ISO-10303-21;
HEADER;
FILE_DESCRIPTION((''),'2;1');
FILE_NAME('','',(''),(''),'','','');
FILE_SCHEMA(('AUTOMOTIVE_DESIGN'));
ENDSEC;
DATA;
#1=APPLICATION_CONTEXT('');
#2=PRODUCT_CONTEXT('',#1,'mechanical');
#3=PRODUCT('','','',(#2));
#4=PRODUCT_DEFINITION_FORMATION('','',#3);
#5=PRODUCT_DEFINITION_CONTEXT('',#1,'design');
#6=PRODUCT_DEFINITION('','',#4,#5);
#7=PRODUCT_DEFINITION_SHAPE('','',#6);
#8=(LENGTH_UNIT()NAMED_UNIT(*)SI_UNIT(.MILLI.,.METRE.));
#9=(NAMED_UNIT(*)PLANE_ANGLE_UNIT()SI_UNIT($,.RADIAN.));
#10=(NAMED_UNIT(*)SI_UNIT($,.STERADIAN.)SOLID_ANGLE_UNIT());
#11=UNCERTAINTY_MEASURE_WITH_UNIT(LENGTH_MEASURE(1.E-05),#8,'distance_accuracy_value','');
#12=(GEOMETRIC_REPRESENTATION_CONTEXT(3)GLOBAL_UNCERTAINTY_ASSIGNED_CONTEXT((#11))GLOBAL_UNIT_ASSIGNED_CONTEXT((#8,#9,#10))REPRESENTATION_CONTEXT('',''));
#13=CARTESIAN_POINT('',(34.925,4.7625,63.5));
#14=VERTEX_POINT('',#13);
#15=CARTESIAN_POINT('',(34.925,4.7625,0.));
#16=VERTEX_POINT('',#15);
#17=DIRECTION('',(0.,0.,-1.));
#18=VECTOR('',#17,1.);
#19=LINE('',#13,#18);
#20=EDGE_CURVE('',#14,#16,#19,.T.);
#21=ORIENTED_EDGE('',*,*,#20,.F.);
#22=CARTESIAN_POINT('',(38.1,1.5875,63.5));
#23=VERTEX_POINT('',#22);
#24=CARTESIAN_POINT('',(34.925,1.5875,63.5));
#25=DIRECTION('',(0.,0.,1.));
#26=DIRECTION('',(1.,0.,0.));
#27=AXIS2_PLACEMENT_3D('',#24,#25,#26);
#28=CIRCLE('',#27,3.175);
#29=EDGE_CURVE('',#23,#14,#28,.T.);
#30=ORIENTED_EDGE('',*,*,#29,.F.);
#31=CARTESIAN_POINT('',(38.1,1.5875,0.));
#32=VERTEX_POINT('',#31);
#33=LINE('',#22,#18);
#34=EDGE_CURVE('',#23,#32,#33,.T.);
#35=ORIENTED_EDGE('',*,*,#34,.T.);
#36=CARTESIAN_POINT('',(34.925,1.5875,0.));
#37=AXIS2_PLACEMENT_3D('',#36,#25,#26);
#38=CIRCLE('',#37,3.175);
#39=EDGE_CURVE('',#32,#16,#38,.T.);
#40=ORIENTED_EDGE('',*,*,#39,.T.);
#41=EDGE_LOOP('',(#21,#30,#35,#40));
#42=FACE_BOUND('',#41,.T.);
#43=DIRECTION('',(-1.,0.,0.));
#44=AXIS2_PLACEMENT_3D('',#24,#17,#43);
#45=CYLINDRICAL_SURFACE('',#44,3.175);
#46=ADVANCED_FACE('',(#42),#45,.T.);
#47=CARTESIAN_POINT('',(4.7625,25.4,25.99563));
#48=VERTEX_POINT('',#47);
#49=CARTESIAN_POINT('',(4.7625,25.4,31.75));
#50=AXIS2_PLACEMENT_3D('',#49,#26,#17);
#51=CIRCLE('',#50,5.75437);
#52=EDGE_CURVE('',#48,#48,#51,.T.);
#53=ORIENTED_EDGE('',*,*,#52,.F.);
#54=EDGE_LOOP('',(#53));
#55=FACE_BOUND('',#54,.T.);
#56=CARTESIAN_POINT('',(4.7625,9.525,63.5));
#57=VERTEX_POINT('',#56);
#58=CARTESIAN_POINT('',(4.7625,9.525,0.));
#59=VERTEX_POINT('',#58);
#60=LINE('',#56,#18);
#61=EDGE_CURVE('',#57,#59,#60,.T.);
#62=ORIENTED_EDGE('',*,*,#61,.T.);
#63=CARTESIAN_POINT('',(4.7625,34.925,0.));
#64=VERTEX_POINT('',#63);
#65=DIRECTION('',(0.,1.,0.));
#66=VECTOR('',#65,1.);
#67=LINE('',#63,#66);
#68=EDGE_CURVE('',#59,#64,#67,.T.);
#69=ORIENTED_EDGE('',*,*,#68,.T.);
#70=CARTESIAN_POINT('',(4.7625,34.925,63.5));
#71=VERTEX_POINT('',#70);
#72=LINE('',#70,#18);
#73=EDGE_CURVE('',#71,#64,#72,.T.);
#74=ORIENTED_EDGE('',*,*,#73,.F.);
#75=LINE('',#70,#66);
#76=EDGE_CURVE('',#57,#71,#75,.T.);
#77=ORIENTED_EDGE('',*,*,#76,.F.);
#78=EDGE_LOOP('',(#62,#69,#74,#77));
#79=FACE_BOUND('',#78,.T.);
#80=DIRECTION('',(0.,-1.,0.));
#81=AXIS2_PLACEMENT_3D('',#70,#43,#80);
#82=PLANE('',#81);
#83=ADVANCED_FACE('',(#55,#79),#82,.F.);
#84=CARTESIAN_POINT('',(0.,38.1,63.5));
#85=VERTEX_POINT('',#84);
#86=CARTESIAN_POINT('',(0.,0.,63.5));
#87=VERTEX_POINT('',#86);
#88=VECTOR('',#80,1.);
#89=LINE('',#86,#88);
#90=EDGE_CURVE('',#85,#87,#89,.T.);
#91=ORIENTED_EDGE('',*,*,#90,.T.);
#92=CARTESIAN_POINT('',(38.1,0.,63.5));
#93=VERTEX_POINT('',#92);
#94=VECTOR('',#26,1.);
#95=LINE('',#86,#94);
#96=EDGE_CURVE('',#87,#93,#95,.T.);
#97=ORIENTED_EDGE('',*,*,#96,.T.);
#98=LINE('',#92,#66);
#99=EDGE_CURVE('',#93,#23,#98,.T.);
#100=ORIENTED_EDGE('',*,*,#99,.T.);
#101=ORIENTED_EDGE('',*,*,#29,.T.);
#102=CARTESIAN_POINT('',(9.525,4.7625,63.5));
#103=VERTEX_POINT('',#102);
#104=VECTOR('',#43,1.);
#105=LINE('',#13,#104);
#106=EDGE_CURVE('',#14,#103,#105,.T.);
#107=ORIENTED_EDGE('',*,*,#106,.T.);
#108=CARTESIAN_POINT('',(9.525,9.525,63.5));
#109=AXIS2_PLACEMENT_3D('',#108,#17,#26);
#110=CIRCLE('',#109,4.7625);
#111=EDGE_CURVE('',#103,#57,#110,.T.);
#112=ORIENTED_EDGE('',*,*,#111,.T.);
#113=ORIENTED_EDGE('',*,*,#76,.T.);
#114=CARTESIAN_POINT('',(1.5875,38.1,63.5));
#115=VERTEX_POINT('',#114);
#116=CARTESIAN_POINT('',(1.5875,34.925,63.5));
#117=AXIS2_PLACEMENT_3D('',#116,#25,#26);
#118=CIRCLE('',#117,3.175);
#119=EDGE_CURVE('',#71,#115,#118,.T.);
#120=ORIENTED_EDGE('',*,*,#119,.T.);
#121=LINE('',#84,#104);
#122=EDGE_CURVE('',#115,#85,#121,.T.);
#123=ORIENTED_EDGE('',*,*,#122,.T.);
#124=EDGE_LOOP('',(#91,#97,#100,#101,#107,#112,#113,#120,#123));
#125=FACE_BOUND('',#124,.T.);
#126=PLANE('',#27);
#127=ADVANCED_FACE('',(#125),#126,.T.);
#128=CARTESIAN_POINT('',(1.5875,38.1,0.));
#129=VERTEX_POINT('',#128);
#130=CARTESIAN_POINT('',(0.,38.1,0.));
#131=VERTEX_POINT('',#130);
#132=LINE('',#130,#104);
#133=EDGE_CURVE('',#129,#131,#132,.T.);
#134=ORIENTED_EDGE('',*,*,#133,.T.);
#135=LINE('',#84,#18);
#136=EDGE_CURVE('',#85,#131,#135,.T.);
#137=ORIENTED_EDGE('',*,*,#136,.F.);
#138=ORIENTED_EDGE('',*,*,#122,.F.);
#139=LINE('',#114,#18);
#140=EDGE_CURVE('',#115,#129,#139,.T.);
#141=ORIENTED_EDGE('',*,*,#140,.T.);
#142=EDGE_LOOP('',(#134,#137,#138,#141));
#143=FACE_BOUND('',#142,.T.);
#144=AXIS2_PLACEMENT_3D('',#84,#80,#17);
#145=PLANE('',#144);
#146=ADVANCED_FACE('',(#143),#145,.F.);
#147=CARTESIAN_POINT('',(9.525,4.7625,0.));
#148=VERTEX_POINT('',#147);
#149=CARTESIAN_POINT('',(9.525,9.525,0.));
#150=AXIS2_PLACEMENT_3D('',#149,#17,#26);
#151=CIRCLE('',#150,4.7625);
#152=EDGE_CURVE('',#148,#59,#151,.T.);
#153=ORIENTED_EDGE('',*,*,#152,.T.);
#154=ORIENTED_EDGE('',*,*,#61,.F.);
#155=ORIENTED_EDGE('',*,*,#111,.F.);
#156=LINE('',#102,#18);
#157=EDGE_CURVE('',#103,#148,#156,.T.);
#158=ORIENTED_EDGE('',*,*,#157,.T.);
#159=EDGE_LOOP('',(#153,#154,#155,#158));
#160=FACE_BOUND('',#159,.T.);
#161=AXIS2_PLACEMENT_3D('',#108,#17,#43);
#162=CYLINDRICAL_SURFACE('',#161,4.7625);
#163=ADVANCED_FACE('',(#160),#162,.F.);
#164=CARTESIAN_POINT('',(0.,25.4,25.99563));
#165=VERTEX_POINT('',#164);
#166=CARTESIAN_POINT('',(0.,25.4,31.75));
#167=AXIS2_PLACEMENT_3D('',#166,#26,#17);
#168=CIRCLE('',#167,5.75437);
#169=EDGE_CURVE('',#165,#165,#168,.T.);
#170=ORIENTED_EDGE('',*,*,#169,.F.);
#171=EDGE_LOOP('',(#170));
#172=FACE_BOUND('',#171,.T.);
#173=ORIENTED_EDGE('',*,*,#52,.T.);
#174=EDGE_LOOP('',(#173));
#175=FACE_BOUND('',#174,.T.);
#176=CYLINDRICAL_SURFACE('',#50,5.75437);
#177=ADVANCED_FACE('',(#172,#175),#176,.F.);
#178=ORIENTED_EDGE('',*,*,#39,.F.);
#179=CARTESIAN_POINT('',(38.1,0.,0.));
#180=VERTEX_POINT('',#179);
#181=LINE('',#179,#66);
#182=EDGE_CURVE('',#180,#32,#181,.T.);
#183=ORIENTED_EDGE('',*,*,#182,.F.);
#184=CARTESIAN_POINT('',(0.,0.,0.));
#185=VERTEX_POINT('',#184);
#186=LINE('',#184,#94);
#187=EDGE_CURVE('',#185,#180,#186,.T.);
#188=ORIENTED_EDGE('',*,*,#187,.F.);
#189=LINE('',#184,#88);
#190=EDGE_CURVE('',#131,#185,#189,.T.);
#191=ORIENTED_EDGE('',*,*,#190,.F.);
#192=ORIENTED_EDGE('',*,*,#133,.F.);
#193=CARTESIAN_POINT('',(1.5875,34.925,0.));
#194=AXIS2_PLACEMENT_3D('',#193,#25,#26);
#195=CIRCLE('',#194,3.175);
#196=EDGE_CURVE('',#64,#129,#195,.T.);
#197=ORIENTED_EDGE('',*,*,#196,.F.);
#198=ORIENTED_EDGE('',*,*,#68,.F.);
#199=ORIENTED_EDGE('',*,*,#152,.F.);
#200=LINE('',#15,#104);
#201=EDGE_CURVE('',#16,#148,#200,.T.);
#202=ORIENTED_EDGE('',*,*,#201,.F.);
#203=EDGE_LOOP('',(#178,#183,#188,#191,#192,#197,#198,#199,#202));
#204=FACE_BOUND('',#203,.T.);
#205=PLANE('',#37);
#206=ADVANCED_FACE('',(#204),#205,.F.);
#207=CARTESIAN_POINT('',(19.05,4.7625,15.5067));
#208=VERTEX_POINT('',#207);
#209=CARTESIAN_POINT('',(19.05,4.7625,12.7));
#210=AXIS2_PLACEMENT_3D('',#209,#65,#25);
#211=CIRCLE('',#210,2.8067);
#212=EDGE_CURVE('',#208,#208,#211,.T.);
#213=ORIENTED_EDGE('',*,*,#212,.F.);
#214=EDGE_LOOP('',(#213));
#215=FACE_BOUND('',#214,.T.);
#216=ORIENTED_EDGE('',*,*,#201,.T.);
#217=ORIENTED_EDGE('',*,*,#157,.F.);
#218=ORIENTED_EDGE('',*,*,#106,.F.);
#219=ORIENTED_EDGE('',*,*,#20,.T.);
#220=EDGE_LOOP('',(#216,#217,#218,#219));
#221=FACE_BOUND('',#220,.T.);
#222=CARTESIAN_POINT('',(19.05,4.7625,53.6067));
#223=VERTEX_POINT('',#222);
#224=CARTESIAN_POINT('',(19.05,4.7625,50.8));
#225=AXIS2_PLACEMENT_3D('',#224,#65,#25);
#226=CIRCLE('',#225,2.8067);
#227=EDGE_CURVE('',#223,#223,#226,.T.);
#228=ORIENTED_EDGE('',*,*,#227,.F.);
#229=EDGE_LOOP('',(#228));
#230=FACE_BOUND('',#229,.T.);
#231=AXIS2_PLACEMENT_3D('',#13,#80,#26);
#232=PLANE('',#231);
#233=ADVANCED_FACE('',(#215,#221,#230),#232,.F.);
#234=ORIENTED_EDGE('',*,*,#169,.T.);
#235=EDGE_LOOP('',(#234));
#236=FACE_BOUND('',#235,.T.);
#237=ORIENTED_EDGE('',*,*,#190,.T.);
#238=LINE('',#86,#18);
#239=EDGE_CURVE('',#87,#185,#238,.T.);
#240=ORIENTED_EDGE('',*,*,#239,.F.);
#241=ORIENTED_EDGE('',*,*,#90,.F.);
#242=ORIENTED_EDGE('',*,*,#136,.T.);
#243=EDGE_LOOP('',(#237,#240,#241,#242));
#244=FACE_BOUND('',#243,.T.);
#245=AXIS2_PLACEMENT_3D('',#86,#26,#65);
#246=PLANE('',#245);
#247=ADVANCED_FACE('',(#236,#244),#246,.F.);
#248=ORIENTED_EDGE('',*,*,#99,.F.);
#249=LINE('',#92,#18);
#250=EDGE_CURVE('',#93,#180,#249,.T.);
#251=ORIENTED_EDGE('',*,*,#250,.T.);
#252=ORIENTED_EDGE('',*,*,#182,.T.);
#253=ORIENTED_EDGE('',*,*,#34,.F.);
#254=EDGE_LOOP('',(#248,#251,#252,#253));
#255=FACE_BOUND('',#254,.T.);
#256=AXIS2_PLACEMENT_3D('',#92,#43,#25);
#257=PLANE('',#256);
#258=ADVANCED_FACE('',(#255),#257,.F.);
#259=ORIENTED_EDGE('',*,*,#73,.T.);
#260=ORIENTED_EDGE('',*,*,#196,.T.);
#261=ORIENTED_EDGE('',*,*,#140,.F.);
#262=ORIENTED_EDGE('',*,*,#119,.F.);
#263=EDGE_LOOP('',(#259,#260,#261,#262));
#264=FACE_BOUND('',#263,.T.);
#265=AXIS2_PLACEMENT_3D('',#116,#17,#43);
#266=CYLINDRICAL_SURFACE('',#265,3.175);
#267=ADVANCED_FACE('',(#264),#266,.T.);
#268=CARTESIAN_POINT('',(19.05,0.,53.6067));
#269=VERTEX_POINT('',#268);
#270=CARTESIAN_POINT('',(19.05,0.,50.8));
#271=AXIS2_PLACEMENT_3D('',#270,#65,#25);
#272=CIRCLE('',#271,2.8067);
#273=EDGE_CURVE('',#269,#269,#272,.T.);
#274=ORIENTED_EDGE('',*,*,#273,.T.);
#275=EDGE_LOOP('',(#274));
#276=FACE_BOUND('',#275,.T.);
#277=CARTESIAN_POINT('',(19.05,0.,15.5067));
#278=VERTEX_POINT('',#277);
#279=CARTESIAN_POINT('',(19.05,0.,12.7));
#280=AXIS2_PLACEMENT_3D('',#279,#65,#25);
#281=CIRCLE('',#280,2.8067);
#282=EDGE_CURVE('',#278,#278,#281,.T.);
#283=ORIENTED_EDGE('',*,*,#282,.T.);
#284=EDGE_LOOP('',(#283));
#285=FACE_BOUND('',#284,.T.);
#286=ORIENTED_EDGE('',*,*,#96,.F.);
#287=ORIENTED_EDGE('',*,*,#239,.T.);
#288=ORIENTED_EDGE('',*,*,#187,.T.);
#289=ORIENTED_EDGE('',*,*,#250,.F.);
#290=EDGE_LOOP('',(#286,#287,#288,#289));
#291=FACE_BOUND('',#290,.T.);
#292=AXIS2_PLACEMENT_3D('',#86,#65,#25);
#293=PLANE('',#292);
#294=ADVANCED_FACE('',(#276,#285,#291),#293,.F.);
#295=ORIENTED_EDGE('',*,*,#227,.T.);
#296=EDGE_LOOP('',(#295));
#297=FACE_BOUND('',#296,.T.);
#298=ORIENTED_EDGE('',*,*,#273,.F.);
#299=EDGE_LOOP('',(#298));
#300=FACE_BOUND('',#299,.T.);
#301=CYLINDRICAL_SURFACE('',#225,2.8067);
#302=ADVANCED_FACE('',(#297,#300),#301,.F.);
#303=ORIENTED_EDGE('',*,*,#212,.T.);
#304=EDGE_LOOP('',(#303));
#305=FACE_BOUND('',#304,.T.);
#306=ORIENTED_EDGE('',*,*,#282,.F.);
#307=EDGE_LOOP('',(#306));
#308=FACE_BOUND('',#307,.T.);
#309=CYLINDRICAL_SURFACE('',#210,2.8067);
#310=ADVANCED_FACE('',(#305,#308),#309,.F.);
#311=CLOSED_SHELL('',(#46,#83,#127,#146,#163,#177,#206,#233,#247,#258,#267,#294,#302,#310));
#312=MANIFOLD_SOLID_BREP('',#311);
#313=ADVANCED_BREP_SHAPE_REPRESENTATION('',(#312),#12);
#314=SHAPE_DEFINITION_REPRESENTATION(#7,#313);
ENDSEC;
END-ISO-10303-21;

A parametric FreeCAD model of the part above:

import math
import FreeCAD as App
import Part
import Sketcher
Q = App.Units.Quantity

doc = App.newDocument("Part")
body = doc.addObject("PartDesign::Body", "Body")

sketch1 = body.newObject("Sketcher::SketchObject", "Sketch")
sketch1.AttachmentSupport = (doc.getObject("XY_Plane"), [""])
sketch1.MapMode = "FlatFace"
sketch1.addGeometry(Part.LineSegment(App.Vector(0, 38.1, 0), App.Vector(0, 0, 0)), False)
sketch1.addGeometry(Part.LineSegment(App.Vector(0, 0, 0), App.Vector(38.1, 0, 0)), False)
sketch1.addGeometry(Part.LineSegment(App.Vector(38.1, 0, 0), App.Vector(38.1, 1.6, 0)), False)
sketch1.addGeometry(Part.ArcOfCircle(Part.Circle(App.Vector(34.9, 1.6, 0), App.Vector(0, 0, 1), 3.2), math.radians(0), math.radians(90)), False)
sketch1.addGeometry(Part.LineSegment(App.Vector(34.9, 4.8, 0), App.Vector(9.5, 4.8, 0)), False)
sketch1.addGeometry(Part.ArcOfCircle(Part.Circle(App.Vector(9.5, 9.5, 0), App.Vector(0, 0, 1), 4.8), math.radians(-180), math.radians(-90)), False)
sketch1.addGeometry(Part.LineSegment(App.Vector(4.8, 9.5, 0), App.Vector(4.8, 34.9, 0)), False)
sketch1.addGeometry(Part.ArcOfCircle(Part.Circle(App.Vector(1.6, 34.9, 0), App.Vector(0, 0, 1), 3.2), math.radians(0), math.radians(90)), False)
sketch1.addGeometry(Part.LineSegment(App.Vector(1.6, 38.1, 0), App.Vector(0, 38.1, 0)), False)
sketch1.addConstraint(Sketcher.Constraint("Coincident", 0, 2, 1, 1))
sketch1.addConstraint(Sketcher.Constraint("Coincident", 1, 2, 2, 1))
sketch1.addConstraint(Sketcher.Constraint("Tangent", 2, 2, 3, 1))
sketch1.addConstraint(Sketcher.Constraint("Tangent", 3, 2, 4, 1))
sketch1.addConstraint(Sketcher.Constraint("Tangent", 4, 2, 5, 2))
sketch1.addConstraint(Sketcher.Constraint("Tangent", 5, 1, 6, 1))
sketch1.addConstraint(Sketcher.Constraint("Tangent", 6, 2, 7, 1))
sketch1.addConstraint(Sketcher.Constraint("Tangent", 7, 2, 8, 1))
sketch1.addConstraint(Sketcher.Constraint("Coincident", 8, 2, 0, 1))
sketch1.addConstraint(Sketcher.Constraint("Vertical", 0))
sketch1.addConstraint(Sketcher.Constraint("Horizontal", 1))
sketch1.addConstraint(Sketcher.Constraint("Vertical", 2))
sketch1.addConstraint(Sketcher.Constraint("Horizontal", 4))
sketch1.addConstraint(Sketcher.Constraint("Vertical", 6))
sketch1.addConstraint(Sketcher.Constraint("Horizontal", 8))
sketch1.addConstraint(Sketcher.Constraint("Coincident", 0, 2, -1, 1))
sketch1.addConstraint(Sketcher.Constraint("Equal", 3, 7))
sketch1.addConstraint(Sketcher.Constraint("Equal", 1, 0))
sketch1.addConstraint(Sketcher.Constraint("Equal", 8, 2))
sketch1.addConstraint(Sketcher.Constraint("DistanceX", 4, 2, 4, 1, Q("1 in")))
sketch1.addConstraint(Sketcher.Constraint("DistanceX", 1, 1, 1, 2, Q("1.5 in")))
sketch1.addConstraint(Sketcher.Constraint("Radius", 3, Q("0.125 in")))
sketch1.addConstraint(Sketcher.Constraint("Radius", 5, Q("0.1875 in")))
pad1 = body.newObject("PartDesign::Pad", "Pad")
pad1.Profile = sketch1
pad1.Length = Q("2.5 in")

sketch2 = body.newObject("Sketcher::SketchObject", "Sketch001")
sketch2.AttachmentSupport = (doc.getObject("XZ_Plane"), [""])
sketch2.MapMode = "FlatFace"
sketch2.AttachmentOffset = App.Placement(App.Vector(0, 0, -0.1875 * 25.4), App.Rotation())
sketch2.addGeometry(Part.Circle(App.Vector(19.1, 50.8, 0), App.Vector(0, 0, 1), 2.8), False)
sketch2.addGeometry(Part.Circle(App.Vector(19.1, 12.7, 0), App.Vector(0, 0, 1), 2.8), False)
sketch2.addConstraint(Sketcher.Constraint("Equal", 0, 1))
sketch2.addConstraint(Sketcher.Constraint("Vertical", 0, 3, 1, 3))
sketch2.addConstraint(Sketcher.Constraint("Diameter", 0, Q("0.221 in")))
sketch2.addConstraint(Sketcher.Constraint("DistanceY", -1, 1, 0, 3, Q("2 in")))
sketch2.addConstraint(Sketcher.Constraint("DistanceY", -1, 1, 1, 3, Q("0.5 in")))
sketch2.addConstraint(Sketcher.Constraint("DistanceX", -1, 1, 0, 3, Q("0.75 in")))
doc.recompute()
hole = body.newObject("PartDesign::Hole", "Hole")
hole.Profile = sketch2
hole.ThreadType = "None"
hole.Diameter = Q("0.221 in")
hole.DepthType = "ThroughAll"
hole.Reversed = True

sketch3 = body.newObject("Sketcher::SketchObject", "Sketch002")
sketch3.AttachmentSupport = (doc.getObject("YZ_Plane"), [""])
sketch3.MapMode = "FlatFace"
sketch3.AttachmentOffset = App.Placement(App.Vector(0, 0, 0.1875 * 25.4), App.Rotation())
sketch3.addGeometry(Part.Circle(App.Vector(25, 32, 0), App.Vector(0, 0, 1), 6), False)
sketch3.addConstraint(Sketcher.Constraint("DistanceX", -1, 1, 0, 3, Q("1 in")))
sketch3.addConstraint(Sketcher.Constraint("Diameter", 0, Q("0.4531 in")))
sketch3.addConstraint(Sketcher.Constraint("DistanceY", -1, 1, 0, 3, Q("1.25 in")))
doc.recompute()
hole2 = body.newObject("PartDesign::Hole", "Hole001")
hole2.Profile = sketch3
hole2.ThreadType = "None"
hole2.Diameter = Q("0.4531 in")
hole2.DepthType = "ThroughAll"

doc.recompute()
